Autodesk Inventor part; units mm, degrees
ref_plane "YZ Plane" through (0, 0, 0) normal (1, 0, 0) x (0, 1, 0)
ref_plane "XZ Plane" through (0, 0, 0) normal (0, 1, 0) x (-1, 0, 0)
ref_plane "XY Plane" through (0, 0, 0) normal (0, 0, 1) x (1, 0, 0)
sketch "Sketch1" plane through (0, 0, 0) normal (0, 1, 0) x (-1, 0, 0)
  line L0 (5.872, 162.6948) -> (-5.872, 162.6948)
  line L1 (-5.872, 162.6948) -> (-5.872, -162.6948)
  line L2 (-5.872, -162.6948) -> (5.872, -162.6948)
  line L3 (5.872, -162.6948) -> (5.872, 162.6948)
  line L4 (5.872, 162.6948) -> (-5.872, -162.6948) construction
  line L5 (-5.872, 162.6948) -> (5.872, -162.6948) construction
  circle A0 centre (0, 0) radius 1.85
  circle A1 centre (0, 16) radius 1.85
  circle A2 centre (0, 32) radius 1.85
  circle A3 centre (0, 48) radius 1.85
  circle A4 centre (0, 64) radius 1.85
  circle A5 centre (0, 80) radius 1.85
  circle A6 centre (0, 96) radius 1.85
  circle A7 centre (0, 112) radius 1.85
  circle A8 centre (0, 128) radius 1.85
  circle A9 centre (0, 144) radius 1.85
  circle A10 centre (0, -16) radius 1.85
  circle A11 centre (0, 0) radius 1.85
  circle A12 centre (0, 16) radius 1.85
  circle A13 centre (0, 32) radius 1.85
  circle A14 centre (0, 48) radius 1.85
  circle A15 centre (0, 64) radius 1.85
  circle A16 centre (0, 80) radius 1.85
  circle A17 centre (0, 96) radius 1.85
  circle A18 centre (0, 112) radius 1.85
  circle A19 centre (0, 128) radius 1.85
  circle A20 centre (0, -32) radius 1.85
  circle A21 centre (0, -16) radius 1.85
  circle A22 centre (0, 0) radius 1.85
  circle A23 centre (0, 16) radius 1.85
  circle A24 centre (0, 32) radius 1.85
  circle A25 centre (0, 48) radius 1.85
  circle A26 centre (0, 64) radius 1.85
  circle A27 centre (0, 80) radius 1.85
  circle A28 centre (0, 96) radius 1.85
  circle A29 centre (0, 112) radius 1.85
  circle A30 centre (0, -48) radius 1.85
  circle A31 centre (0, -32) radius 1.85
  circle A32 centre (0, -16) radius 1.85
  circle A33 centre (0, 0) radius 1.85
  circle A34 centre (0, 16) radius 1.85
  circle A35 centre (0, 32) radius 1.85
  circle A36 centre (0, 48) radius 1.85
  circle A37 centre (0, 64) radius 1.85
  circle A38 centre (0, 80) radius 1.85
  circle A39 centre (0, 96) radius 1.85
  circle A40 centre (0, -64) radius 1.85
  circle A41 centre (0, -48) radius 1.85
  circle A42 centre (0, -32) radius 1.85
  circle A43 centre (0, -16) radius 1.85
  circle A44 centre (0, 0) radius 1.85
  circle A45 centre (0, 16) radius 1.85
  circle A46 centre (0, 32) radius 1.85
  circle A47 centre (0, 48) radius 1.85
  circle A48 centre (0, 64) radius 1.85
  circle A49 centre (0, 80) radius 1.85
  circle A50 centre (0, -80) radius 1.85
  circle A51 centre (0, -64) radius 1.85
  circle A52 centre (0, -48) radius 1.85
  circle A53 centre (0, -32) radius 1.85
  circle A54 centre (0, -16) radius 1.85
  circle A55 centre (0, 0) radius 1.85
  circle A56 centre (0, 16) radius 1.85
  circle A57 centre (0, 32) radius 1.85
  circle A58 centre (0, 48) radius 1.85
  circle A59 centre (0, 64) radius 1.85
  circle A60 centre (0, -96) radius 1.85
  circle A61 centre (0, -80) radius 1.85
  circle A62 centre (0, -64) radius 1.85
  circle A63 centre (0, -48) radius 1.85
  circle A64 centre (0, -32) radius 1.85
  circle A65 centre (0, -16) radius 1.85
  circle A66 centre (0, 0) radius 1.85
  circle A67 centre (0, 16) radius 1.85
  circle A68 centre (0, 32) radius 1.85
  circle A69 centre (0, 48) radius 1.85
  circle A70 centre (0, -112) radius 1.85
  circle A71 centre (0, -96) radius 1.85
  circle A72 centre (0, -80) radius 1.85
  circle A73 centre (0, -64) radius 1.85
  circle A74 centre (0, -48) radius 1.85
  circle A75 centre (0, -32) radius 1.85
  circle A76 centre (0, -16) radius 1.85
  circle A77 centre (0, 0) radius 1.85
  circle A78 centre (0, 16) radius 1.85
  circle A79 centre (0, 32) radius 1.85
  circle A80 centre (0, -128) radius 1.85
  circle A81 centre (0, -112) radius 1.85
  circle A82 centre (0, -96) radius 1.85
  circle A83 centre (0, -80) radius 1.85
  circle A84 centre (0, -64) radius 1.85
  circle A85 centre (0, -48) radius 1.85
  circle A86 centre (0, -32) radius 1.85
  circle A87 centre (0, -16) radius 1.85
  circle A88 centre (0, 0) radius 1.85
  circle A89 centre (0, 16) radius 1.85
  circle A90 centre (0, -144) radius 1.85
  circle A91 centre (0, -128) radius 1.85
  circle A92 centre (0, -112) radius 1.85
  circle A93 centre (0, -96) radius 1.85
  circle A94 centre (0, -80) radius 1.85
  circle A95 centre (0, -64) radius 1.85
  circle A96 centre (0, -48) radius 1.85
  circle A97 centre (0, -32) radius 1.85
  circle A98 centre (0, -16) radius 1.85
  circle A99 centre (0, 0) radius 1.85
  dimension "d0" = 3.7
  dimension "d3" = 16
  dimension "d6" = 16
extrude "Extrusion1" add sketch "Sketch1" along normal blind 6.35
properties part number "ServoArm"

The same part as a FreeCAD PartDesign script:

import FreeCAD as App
import Part
import Sketcher
from FreeCAD import Vector

doc = App.newDocument("Part")
body = doc.addObject("PartDesign::Body", "Body")

# Sketch on XZ plane
sketch1 = body.newObject("Sketcher::SketchObject", "Sketch")
sketch1.AttachmentSupport = (doc.getObject("XZ_Plane"), [""])
sketch1.MapMode = "FlatFace"
sketch1.addGeometry(Part.LineSegment(Vector(-5.872, -162.6948, 0), Vector(-5.872, 162.6948, 0)), False)
sketch1.addGeometry(Part.LineSegment(Vector(-5.872, 162.6948, 0), Vector(5.872, 162.6948, 0)), False)
sketch1.addGeometry(Part.LineSegment(Vector(5.872, 162.6948, 0), Vector(5.872, -162.6948, 0)), False)
sketch1.addGeometry(Part.LineSegment(Vector(5.872, -162.6948, 0), Vector(-5.872, -162.6948, 0)), False)
sketch1.addGeometry(Part.Circle(Vector(0, -144, 0), Vector(0, 0, 1), 1.85), False)
sketch1.addGeometry(Part.Circle(Vector(0, -128, 0), Vector(0, 0, 1), 1.85), False)
sketch1.addGeometry(Part.Circle(Vector(0, -112, 0), Vector(0, 0, 1), 1.85), False)
sketch1.addGeometry(Part.Circle(Vector(0, -96, 0), Vector(0, 0, 1), 1.85), False)
sketch1.addGeometry(Part.Circle(Vector(0, -80, 0), Vector(0, 0, 1), 1.85), False)
sketch1.addGeometry(Part.Circle(Vector(0, -64, 0), Vector(0, 0, 1), 1.85), False)
sketch1.addGeometry(Part.Circle(Vector(0, -48, 0), Vector(0, 0, 1), 1.85), False)
sketch1.addGeometry(Part.Circle(Vector(0, -32, 0), Vector(0, 0, 1), 1.85), False)
sketch1.addGeometry(Part.Circle(Vector(0, -16, 0), Vector(0, 0, 1), 1.85), False)
sketch1.addGeometry(Part.Circle(Vector(0, 0, 0), Vector(0, 0, 1), 1.85), False)
sketch1.addGeometry(Part.Circle(Vector(0, 16, 0), Vector(0, 0, 1), 1.85), False)
sketch1.addGeometry(Part.Circle(Vector(0, 32, 0), Vector(0, 0, 1), 1.85), False)
sketch1.addGeometry(Part.Circle(Vector(0, 48, 0), Vector(0, 0, 1), 1.85), False)
sketch1.addGeometry(Part.Circle(Vector(0, 64, 0), Vector(0, 0, 1), 1.85), False)
sketch1.addGeometry(Part.Circle(Vector(0, 80, 0), Vector(0, 0, 1), 1.85), False)
sketch1.addGeometry(Part.Circle(Vector(0, 96, 0), Vector(0, 0, 1), 1.85), False)
sketch1.addGeometry(Part.Circle(Vector(0, 112, 0), Vector(0, 0, 1), 1.85), False)
sketch1.addGeometry(Part.Circle(Vector(0, 128, 0), Vector(0, 0, 1), 1.85), False)
sketch1.addGeometry(Part.Circle(Vector(0, 144, 0), Vector(0, 0, 1), 1.85), False)
sketch1.addConstraint(Sketcher.Constraint("Coincident", 0, 2, 1, 1))
sketch1.addConstraint(Sketcher.Constraint("Coincident", 1, 2, 2, 1))
sketch1.addConstraint(Sketcher.Constraint("Coincident", 2, 2, 3, 1))
sketch1.addConstraint(Sketcher.Constraint("Coincident", 3, 2, 0, 1))
sketch1.addConstraint(Sketcher.Constraint("Vertical", 0))
sketch1.addConstraint(Sketcher.Constraint("Horizontal", 1))
sketch1.addConstraint(Sketcher.Constraint("Vertical", 2))
sketch1.addConstraint(Sketcher.Constraint("Horizontal", 3))
sketch1.addConstraint(Sketcher.Constraint("Coincident", 13, 3, -1, 1))
sketch1.addConstraint(Sketcher.Constraint("Equal", 4, 5))
sketch1.addConstraint(Sketcher.Constraint("Equal", 5, 6))
sketch1.addConstraint(Sketcher.Constraint("Equal", 6, 7))
sketch1.addConstraint(Sketcher.Constraint("Equal", 7, 8))
sketch1.addConstraint(Sketcher.Constraint("Equal", 8, 9))
sketch1.addConstraint(Sketcher.Constraint("Equal", 9, 10))
sketch1.addConstraint(Sketcher.Constraint("Equal", 10, 11))
sketch1.addConstraint(Sketcher.Constraint("Equal", 11, 12))
sketch1.addConstraint(Sketcher.Constraint("Equal", 12, 13))
sketch1.addConstraint(Sketcher.Constraint("Equal", 13, 14))
sketch1.addConstraint(Sketcher.Constraint("Equal", 14, 15))
sketch1.addConstraint(Sketcher.Constraint("Equal", 15, 16))
sketch1.addConstraint(Sketcher.Constraint("Equal", 16, 17))
sketch1.addConstraint(Sketcher.Constraint("Equal", 17, 18))
sketch1.addConstraint(Sketcher.Constraint("Equal", 18, 19))
sketch1.addConstraint(Sketcher.Constraint("Equal", 19, 20))
sketch1.addConstraint(Sketcher.Constraint("Equal", 20, 21))
sketch1.addConstraint(Sketcher.Constraint("Equal", 21, 22))
sketch1.addConstraint(Sketcher.Constraint("Symmetric", 12, 3, 14, 3, -1, 1))
sketch1.addConstraint(Sketcher.Constraint("Symmetric", 11, 3, 15, 3, -1, 1))
sketch1.addConstraint(Sketcher.Constraint("Symmetric", 10, 3, 16, 3, -1, 1))
sketch1.addConstraint(Sketcher.Constraint("Symmetric", 9, 3, 17, 3, -1, 1))
sketch1.addConstraint(Sketcher.Constraint("Symmetric", 8, 3, 18, 3, -1, 1))
sketch1.addConstraint(Sketcher.Constraint("Symmetric", 7, 3, 19, 3, -1, 1))
sketch1.addConstraint(Sketcher.Constraint("Symmetric", 6, 3, 20, 3, -1, 1))
sketch1.addConstraint(Sketcher.Constraint("Symmetric", 5, 3, 21, 3, -1, 1))
sketch1.addConstraint(Sketcher.Constraint("Symmetric", 4, 3, 22, 3, -1, 1))
sketch1.addConstraint(Sketcher.Constraint("Symmetric", 0, 2, 2, 2, -1, 1))
sketch1.addConstraint(Sketcher.Constraint("PointOnObject", 4, 3, -2))
sketch1.addConstraint(Sketcher.Constraint("PointOnObject", 5, 3, -2))
sketch1.addConstraint(Sketcher.Constraint("PointOnObject", 6, 3, -2))
sketch1.addConstraint(Sketcher.Constraint("PointOnObject", 7, 3, -2))
sketch1.addConstraint(Sketcher.Constraint("PointOnObject", 8, 3, -2))
sketch1.addConstraint(Sketcher.Constraint("PointOnObject", 9, 3, -2))
sketch1.addConstraint(Sketcher.Constraint("PointOnObject", 10, 3, -2))
sketch1.addConstraint(Sketcher.Constraint("PointOnObject", 11, 3, -2))
sketch1.addConstraint(Sketcher.Constraint("PointOnObject", 12, 3, -2))
sketch1.addConstraint(Sketcher.Constraint("Diameter", 4, 3.7))
sketch1.addConstraint(Sketcher.Constraint("DistanceY", 12, 3, -1, 1, 16.0))
sketch1.addConstraint(Sketcher.Constraint("DistanceY", 4, 3, 5, 3, 16.0))
sketch1.addConstraint(Sketcher.Constraint("DistanceY", 5, 3, 6, 3, 16.0))
sketch1.addConstraint(Sketcher.Constraint("DistanceY", 6, 3, 7, 3, 16.0))
sketch1.addConstraint(Sketcher.Constraint("DistanceY", 7, 3, 8, 3, 16.0))
sketch1.addConstraint(Sketcher.Constraint("DistanceY", 8, 3, 9, 3, 16.0))
sketch1.addConstraint(Sketcher.Constraint("DistanceY", 9, 3, 10, 3, 16.0))
sketch1.addConstraint(Sketcher.Constraint("DistanceY", 10, 3, 11, 3, 16.0))
sketch1.addConstraint(Sketcher.Constraint("DistanceY", 11, 3, 12, 3, 16.0))
sketch1.addConstraint(Sketcher.Constraint("DistanceX", 1, 1, 1, 2, 11.744))
sketch1.addConstraint(Sketcher.Constraint("DistanceY", 0, 1, 0, 2, 325.3896))
pad1 = body.newObject("PartDesign::Pad", "Pad")
pad1.Profile = sketch1
pad1.Length = 6.35
pad1.Reversed = True

doc.recompute()
